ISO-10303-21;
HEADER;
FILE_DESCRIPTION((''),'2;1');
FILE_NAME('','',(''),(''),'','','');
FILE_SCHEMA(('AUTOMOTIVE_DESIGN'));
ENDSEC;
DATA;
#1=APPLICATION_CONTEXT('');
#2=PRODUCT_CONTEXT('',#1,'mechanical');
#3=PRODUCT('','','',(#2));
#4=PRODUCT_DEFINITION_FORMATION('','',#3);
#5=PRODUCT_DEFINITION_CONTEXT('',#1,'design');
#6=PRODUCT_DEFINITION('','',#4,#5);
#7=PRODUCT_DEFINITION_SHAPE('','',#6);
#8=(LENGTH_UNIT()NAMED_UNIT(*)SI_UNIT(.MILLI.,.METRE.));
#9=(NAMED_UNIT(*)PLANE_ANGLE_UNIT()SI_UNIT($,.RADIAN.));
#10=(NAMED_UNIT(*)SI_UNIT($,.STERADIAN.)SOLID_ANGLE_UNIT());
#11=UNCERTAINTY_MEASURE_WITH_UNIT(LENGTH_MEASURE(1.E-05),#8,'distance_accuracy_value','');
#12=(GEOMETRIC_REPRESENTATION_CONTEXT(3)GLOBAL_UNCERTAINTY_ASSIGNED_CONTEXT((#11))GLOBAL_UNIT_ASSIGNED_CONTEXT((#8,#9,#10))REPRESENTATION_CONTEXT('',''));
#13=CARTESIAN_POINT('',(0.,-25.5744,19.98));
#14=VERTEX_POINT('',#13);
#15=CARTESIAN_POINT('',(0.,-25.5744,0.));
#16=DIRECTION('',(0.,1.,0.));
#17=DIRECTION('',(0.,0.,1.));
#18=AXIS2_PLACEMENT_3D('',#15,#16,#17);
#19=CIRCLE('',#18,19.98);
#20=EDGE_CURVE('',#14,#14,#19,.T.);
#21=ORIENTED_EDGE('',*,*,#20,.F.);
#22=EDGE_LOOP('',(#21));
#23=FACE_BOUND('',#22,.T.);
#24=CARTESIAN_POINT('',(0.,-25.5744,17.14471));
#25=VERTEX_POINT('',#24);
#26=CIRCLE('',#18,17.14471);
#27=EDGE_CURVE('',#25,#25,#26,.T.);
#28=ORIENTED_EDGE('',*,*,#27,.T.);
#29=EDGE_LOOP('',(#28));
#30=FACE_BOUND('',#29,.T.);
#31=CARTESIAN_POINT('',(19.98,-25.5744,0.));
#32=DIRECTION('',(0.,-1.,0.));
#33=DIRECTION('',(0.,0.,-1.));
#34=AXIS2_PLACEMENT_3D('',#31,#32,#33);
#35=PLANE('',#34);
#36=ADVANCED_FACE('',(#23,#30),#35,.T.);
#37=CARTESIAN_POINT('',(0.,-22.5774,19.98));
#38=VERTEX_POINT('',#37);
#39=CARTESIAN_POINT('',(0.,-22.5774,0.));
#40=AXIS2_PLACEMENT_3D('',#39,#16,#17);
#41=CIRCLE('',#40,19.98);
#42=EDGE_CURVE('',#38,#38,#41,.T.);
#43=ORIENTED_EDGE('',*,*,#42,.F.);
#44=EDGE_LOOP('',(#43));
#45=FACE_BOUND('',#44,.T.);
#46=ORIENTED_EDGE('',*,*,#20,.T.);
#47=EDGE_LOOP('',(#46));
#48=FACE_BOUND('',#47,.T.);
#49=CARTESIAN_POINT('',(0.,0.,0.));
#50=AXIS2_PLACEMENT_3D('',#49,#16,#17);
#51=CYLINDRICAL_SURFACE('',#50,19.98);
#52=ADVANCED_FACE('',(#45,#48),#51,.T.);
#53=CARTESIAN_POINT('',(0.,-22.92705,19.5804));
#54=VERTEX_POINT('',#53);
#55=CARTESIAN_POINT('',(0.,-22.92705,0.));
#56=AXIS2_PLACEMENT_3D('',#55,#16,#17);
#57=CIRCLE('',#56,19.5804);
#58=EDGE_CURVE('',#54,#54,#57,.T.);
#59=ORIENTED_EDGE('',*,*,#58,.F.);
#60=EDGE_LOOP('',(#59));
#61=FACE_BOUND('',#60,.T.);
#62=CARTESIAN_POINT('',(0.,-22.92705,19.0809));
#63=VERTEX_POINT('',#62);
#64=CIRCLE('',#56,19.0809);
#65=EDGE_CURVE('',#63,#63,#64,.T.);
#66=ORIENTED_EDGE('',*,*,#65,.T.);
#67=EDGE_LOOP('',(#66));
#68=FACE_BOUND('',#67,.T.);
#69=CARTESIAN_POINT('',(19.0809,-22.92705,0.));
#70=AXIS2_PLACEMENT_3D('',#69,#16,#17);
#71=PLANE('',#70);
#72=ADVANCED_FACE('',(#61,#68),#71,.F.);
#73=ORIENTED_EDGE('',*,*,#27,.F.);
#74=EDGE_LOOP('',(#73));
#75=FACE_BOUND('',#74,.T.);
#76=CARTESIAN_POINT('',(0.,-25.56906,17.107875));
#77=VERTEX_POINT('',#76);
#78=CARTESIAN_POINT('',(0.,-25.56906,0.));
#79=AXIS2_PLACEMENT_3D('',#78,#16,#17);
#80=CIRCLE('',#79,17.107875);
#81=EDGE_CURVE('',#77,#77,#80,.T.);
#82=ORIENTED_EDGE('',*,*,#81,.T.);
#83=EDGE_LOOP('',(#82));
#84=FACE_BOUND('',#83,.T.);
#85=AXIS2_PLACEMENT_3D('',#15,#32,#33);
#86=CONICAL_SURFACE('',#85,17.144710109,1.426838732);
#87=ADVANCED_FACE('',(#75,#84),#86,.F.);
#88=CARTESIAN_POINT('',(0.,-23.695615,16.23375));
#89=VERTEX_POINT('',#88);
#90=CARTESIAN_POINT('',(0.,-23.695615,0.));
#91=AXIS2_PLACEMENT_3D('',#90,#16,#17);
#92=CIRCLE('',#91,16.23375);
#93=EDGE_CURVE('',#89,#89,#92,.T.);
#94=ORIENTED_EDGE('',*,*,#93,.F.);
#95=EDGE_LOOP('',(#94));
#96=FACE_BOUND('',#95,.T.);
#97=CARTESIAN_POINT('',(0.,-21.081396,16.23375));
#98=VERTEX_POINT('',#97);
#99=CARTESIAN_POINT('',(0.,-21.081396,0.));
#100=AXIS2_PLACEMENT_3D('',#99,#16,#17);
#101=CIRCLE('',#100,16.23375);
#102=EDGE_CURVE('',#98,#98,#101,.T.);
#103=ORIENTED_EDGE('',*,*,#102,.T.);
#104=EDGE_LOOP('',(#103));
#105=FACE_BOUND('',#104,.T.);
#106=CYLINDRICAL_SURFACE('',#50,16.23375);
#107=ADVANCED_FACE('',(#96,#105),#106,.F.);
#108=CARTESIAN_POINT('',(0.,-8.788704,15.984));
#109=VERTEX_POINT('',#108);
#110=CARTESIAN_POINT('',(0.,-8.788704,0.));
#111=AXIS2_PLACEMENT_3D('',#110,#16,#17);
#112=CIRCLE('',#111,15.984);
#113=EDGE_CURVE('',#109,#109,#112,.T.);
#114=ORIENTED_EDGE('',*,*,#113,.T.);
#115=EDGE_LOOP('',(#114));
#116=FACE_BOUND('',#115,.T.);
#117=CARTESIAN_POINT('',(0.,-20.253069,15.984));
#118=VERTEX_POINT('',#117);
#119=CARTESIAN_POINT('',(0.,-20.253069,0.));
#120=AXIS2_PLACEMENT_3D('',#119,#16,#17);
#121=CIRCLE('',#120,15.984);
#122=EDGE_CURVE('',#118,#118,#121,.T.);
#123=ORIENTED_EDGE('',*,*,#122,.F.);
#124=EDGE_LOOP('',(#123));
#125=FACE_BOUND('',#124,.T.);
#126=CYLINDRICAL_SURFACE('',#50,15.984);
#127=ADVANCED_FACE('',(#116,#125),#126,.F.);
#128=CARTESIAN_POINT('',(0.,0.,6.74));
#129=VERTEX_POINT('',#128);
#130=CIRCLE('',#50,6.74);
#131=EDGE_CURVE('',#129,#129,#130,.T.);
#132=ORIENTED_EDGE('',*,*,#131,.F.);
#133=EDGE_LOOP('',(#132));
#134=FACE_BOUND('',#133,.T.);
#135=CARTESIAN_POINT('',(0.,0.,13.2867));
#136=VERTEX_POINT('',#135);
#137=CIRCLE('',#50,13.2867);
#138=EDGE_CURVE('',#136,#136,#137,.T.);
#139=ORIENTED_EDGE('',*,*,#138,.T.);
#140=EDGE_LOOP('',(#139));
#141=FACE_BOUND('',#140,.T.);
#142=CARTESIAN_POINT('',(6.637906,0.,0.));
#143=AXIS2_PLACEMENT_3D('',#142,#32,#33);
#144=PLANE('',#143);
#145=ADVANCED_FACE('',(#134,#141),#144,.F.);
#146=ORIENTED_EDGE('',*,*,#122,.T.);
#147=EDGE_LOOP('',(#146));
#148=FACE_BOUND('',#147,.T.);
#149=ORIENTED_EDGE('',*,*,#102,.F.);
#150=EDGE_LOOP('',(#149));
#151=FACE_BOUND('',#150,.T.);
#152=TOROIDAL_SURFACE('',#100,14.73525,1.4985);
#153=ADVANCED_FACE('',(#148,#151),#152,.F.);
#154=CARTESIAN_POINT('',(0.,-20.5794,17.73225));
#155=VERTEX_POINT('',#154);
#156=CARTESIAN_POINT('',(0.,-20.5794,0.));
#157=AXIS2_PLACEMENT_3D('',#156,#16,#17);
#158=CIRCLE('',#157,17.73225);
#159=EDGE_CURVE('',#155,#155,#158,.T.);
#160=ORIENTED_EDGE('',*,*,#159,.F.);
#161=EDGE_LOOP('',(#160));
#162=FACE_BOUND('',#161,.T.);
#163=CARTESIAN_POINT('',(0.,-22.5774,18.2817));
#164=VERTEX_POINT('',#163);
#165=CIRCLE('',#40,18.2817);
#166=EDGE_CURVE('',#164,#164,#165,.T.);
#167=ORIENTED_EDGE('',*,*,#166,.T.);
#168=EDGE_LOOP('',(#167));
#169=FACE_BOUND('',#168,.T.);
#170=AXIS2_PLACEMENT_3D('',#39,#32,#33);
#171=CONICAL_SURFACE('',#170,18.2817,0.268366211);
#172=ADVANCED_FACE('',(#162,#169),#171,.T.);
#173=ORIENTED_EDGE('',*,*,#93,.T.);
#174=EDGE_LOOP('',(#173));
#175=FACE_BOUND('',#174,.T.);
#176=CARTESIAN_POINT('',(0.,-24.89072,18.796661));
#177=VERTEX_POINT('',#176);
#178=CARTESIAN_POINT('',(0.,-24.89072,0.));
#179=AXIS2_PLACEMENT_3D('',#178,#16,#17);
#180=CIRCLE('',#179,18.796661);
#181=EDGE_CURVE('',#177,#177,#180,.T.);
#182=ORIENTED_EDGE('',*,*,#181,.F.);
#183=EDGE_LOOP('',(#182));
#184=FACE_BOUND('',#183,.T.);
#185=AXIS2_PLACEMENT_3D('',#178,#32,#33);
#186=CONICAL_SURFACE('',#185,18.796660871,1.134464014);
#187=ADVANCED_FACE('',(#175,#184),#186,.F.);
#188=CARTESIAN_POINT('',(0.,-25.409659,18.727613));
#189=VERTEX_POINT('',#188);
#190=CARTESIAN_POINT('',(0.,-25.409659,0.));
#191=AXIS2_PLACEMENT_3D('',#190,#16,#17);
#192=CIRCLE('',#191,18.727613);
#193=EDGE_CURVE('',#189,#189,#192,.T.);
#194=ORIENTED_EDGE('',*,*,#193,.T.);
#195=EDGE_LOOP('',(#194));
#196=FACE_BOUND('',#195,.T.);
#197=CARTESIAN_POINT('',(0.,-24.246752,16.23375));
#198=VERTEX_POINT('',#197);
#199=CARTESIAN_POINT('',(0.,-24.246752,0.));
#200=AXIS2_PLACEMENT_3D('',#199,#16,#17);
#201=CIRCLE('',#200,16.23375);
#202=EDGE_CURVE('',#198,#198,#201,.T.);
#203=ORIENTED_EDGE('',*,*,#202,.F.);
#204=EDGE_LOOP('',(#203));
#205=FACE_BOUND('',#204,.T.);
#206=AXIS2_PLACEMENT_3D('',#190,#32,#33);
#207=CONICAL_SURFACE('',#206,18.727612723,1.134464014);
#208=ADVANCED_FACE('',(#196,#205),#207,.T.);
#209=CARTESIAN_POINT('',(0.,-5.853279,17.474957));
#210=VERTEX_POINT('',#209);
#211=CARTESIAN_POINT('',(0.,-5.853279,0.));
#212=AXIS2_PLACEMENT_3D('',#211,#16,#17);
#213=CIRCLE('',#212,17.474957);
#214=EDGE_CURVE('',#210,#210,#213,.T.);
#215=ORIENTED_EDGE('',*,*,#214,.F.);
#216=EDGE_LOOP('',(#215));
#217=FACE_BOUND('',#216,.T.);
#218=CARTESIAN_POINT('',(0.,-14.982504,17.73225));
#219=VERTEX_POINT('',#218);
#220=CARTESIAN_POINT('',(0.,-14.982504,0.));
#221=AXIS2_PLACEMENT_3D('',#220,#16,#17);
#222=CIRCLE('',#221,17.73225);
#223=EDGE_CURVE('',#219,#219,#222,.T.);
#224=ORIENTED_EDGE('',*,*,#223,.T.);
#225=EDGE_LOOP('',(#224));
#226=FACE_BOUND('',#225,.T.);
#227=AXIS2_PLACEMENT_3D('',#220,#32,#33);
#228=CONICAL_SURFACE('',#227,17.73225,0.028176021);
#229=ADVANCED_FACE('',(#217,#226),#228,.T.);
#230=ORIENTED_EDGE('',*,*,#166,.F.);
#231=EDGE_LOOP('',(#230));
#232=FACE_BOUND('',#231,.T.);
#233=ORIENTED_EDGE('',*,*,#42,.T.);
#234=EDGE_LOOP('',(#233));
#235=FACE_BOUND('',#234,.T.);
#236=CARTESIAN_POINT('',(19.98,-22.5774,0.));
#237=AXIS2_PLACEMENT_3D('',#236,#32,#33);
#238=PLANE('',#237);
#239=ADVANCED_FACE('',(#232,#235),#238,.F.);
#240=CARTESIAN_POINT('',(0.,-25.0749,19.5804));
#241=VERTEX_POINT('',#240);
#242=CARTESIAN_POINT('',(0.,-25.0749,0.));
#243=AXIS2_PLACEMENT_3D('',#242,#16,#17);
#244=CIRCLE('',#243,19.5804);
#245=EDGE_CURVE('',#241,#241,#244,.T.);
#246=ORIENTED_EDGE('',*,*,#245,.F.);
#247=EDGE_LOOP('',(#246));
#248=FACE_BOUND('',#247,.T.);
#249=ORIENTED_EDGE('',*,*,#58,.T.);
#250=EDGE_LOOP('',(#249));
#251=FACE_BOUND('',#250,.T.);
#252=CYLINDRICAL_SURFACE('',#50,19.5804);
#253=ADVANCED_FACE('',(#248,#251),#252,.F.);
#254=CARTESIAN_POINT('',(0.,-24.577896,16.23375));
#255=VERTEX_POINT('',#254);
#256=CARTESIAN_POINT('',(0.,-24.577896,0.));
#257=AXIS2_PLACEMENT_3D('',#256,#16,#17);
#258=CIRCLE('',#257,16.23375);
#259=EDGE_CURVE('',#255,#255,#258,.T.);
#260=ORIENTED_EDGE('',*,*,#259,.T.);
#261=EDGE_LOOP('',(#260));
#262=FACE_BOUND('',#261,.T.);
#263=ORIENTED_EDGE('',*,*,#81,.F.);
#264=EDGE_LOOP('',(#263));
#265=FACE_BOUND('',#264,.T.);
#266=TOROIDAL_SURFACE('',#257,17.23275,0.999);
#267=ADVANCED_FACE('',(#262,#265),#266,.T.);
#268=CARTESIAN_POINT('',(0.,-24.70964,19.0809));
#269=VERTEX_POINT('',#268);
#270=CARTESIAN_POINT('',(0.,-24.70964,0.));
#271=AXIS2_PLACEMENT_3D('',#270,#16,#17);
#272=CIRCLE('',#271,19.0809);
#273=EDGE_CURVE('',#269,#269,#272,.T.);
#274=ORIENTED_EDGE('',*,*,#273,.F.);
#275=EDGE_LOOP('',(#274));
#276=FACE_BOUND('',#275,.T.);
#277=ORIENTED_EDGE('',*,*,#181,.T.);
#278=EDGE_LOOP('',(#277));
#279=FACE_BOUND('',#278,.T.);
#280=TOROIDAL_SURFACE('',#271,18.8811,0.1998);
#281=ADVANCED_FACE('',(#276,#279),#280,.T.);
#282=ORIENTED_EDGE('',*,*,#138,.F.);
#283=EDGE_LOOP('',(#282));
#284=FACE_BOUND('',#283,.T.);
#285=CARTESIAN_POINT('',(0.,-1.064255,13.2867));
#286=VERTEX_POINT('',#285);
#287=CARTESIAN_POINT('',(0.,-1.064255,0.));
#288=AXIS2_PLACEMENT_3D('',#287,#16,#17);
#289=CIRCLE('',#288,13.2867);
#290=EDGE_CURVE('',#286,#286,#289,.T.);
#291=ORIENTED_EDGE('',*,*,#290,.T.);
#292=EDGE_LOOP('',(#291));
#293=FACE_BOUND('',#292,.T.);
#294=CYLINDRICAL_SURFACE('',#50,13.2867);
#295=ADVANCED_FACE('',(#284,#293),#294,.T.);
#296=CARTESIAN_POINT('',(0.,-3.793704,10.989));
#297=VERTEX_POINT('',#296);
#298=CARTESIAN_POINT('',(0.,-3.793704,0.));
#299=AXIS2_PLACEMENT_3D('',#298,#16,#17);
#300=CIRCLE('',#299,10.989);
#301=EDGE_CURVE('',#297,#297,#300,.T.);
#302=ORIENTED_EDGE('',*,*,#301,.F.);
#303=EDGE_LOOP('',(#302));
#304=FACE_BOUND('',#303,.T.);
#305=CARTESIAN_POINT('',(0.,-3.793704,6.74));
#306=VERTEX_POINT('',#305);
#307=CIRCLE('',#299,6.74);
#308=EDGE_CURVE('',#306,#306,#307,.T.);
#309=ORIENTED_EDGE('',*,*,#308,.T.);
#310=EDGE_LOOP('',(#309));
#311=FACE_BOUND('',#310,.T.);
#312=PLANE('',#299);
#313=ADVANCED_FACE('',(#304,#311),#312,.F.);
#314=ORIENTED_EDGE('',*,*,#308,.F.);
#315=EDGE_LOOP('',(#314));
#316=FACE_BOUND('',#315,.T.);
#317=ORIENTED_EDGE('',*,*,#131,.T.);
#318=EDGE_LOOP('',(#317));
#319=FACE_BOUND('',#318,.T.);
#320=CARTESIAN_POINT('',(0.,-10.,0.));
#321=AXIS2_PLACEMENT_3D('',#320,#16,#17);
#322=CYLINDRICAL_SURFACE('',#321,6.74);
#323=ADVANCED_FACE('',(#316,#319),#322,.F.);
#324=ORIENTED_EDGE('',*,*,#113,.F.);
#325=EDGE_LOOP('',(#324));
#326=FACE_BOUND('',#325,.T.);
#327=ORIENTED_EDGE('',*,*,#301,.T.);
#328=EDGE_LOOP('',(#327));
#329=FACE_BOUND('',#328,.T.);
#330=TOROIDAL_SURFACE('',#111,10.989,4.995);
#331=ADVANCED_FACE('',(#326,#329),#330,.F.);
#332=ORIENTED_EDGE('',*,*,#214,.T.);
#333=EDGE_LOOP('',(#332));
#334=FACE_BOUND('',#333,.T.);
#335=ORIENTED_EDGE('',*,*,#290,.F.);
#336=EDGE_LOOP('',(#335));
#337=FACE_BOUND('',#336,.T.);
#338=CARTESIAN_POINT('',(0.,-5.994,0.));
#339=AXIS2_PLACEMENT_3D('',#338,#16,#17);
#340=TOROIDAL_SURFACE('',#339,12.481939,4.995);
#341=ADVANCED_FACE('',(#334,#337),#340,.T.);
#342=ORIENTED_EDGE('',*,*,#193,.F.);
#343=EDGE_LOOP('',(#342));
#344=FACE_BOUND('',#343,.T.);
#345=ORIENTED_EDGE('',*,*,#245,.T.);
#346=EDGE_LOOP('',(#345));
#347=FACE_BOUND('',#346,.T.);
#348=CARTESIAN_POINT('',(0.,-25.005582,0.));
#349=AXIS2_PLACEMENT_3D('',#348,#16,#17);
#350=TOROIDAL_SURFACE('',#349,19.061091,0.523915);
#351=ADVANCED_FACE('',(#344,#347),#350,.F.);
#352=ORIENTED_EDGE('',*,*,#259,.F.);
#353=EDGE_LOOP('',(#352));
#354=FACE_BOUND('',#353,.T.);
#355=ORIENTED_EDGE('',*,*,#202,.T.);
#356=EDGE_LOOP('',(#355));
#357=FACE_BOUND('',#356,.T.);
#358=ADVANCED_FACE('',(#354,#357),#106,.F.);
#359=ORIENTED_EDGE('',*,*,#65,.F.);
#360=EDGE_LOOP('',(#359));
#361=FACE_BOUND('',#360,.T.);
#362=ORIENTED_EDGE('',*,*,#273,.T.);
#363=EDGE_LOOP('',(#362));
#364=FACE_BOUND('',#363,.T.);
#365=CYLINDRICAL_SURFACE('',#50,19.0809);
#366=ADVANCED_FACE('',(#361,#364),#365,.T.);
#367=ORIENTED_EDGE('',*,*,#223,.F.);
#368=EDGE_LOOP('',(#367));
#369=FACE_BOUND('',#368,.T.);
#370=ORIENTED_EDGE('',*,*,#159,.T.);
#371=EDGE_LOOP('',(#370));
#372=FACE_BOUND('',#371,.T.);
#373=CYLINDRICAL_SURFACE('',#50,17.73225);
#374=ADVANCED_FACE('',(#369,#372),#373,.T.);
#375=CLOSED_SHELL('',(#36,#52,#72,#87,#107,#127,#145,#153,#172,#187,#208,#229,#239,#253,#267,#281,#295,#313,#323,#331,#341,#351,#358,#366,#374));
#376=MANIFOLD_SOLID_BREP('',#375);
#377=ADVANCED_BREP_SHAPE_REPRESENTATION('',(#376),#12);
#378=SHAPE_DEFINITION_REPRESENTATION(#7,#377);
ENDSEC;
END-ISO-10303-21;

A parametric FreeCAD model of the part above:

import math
import FreeCAD as App
import Part
import Sketcher

V = App.Vector
Q = App.Units.Quantity

doc = App.newDocument("Part")
params = doc.addObject("Spreadsheet::Sheet", "Params")
for row, (alias, value) in enumerate([
    ("revolution_angle", "360 deg"),
    ("sketch2_diameter", "13.48 mm"),
    ("pocket1_length", "10 mm"),
], start=1):
    params.set(f"A{row}", alias)
    params.set(f"B{row}", "=" + value)
    params.setAlias(f"B{row}", alias)

body = doc.addObject("PartDesign::Body", "Body")

sketch1 = doc.addObject("Sketcher::SketchObject", "Sketch")
body.addObject(sketch1)
sketch1.AttachmentSupport = (doc.XY_Plane, [""])
sketch1.MapMode = "FlatFace"
sketch1.addGeometry(Part.LineSegment(V(0, 0, 0), V(0, -3.793704, 0)), False)
sketch1.addGeometry(Part.LineSegment(V(0, -3.793704, 0), V(10.989, -3.793704, 0)), False)
sketch1.addGeometry(Part.ArcOfCircle(Part.Circle(V(10.989, -8.788704, 0), V(0, 0, 1), 4.995), math.radians(0), math.radians(90)), False)
sketch1.addGeometry(Part.LineSegment(V(15.984, -8.788704, 0), V(15.984, -20.253069, 0)), False)
sketch1.addGeometry(Part.ArcOfCircle(Part.Circle(V(14.73525, -21.081396, 0), V(0, 0, 1), 1.4985), math.radians(0), math.radians(33.55731)), False)
sketch1.addGeometry(Part.LineSegment(V(16.23375, -21.081396, 0), V(16.23375, -23.695615, 0)), False)
sketch1.addGeometry(Part.LineSegment(V(16.23375, -23.695615, 0), V(18.796661, -24.89072, 0)), False)
sketch1.addGeometry(Part.ArcOfCircle(Part.Circle(V(18.8811, -24.70964, 0), V(0, 0, 1), 0.1998), math.radians(-115), math.radians(0)), False)
sketch1.addGeometry(Part.LineSegment(V(19.0809, -24.70964, 0), V(19.0809, -22.92705, 0)), False)
sketch1.addGeometry(Part.LineSegment(V(19.0809, -22.92705, 0), V(19.5804, -22.92705, 0)), False)
sketch1.addGeometry(Part.LineSegment(V(19.5804, -22.92705, 0), V(19.5804, -25.0749, 0)), False)
sketch1.addGeometry(Part.ArcOfCircle(Part.Circle(V(19.061091, -25.005582, 0), V(0, 0, 1), 0.523915), math.radians(-129.532293), math.radians(-7.602984)), False)
sketch1.addGeometry(Part.LineSegment(V(18.727613, -25.409659, 0), V(16.23375, -24.246752, 0)), False)
sketch1.addGeometry(Part.LineSegment(V(16.23375, -24.246752, 0), V(16.23375, -24.577896, 0)), False)
sketch1.addGeometry(Part.ArcOfCircle(Part.Circle(V(17.23275, -24.577896, 0), V(0, 0, 1), 0.999), math.radians(180), math.radians(262.819244)), False)
sketch1.addGeometry(Part.LineSegment(V(17.107875, -25.56906, 0), V(17.14471, -25.5744, 0)), False)
sketch1.addGeometry(Part.LineSegment(V(17.14471, -25.5744, 0), V(19.98, -25.5744, 0)), False)
sketch1.addGeometry(Part.LineSegment(V(19.98, -25.5744, 0), V(19.98, -22.5774, 0)), False)
sketch1.addGeometry(Part.LineSegment(V(19.98, -22.5774, 0), V(18.2817, -22.5774, 0)), False)
sketch1.addGeometry(Part.LineSegment(V(18.2817, -22.5774, 0), V(17.73225, -20.5794, 0)), False)
sketch1.addGeometry(Part.LineSegment(V(17.73225, -20.5794, 0), V(17.73225, -14.982504, 0)), False)
sketch1.addGeometry(Part.LineSegment(V(17.73225, -14.982504, 0), V(17.474957, -5.853279, 0)), False)
sketch1.addGeometry(Part.ArcOfCircle(Part.Circle(V(12.481939, -5.994, 0), V(0, 0, 1), 4.995), math.radians(1.614367), math.radians(80.72848)), False)
sketch1.addGeometry(Part.LineSegment(V(13.2867, -1.064255, 0), V(13.2867, 0, 0)), False)
sketch1.addGeometry(Part.LineSegment(V(13.2867, 0, 0), V(0, 0, 0)), False)
sketch1.addConstraint(Sketcher.Constraint("Coincident", 0, 2, 1, 1))
sketch1.addConstraint(Sketcher.Constraint("Tangent", 1, 2, 2, 2))
sketch1.addConstraint(Sketcher.Constraint("Tangent", 2, 1, 3, 1))
sketch1.addConstraint(Sketcher.Constraint("Coincident", 3, 2, 4, 2))
sketch1.addConstraint(Sketcher.Constraint("Tangent", 4, 1, 5, 1))
sketch1.addConstraint(Sketcher.Constraint("Coincident", 5, 2, 6, 1))
sketch1.addConstraint(Sketcher.Constraint("Tangent", 6, 2, 7, 1))
sketch1.addConstraint(Sketcher.Constraint("Tangent", 7, 2, 8, 1))
sketch1.addConstraint(Sketcher.Constraint("Coincident", 8, 2, 9, 1))
sketch1.addConstraint(Sketcher.Constraint("Coincident", 9, 2, 10, 1))
sketch1.addConstraint(Sketcher.Constraint("Coincident", 10, 2, 11, 2))
sketch1.addConstraint(Sketcher.Constraint("Coincident", 11, 1, 12, 1))
sketch1.addConstraint(Sketcher.Constraint("Coincident", 12, 2, 13, 1))
sketch1.addConstraint(Sketcher.Constraint("Tangent", 13, 2, 14, 1))
sketch1.addConstraint(Sketcher.Constraint("Coincident", 14, 2, 15, 1))
sketch1.addConstraint(Sketcher.Constraint("Coincident", 15, 2, 16, 1))
sketch1.addConstraint(Sketcher.Constraint("Coincident", 16, 2, 17, 1))
sketch1.addConstraint(Sketcher.Constraint("Coincident", 17, 2, 18, 1))
sketch1.addConstraint(Sketcher.Constraint("Coincident", 18, 2, 19, 1))
sketch1.addConstraint(Sketcher.Constraint("Coincident", 19, 2, 20, 1))
sketch1.addConstraint(Sketcher.Constraint("Coincident", 20, 2, 21, 1))
sketch1.addConstraint(Sketcher.Constraint("Tangent", 21, 2, 22, 1))
sketch1.addConstraint(Sketcher.Constraint("Coincident", 22, 2, 23, 1))
sketch1.addConstraint(Sketcher.Constraint("Coincident", 23, 2, 24, 1))
sketch1.addConstraint(Sketcher.Constraint("Coincident", 24, 2, 0, 1))
sketch1.addConstraint(Sketcher.Constraint("Vertical", 0))
sketch1.addConstraint(Sketcher.Constraint("Horizontal", 1))
sketch1.addConstraint(Sketcher.Constraint("Vertical", 3))
sketch1.addConstraint(Sketcher.Constraint("Vertical", 5))
sketch1.addConstraint(Sketcher.Constraint("Vertical", 8))
sketch1.addConstraint(Sketcher.Constraint("Horizontal", 9))
sketch1.addConstraint(Sketcher.Constraint("Vertical", 10))
sketch1.addConstraint(Sketcher.Constraint("Vertical", 13))
sketch1.addConstraint(Sketcher.Constraint("Horizontal", 16))
sketch1.addConstraint(Sketcher.Constraint("Vertical", 17))
sketch1.addConstraint(Sketcher.Constraint("Horizontal", 18))
sketch1.addConstraint(Sketcher.Constraint("Vertical", 20))
sketch1.addConstraint(Sketcher.Constraint("Vertical", 23))
sketch1.addConstraint(Sketcher.Constraint("Horizontal", 24))
sketch1.addConstraint(Sketcher.Constraint("Coincident", 24, 2, -1, 1))
sketch1.addConstraint(Sketcher.Constraint("Equal", 2, 22))
sketch1.addConstraint(Sketcher.Constraint("Parallel", 6, 12))
sketch1.addConstraint(Sketcher.Constraint("Vertical", 5, 2, 12, 2))
sketch1.addConstraint(Sketcher.Constraint("Angle", 6, Q("-25 deg")))
sketch1.addConstraint(Sketcher.Constraint("Radius", 2, 4.995))
sketch1.addConstraint(Sketcher.Constraint("Radius", 14, 0.999))
sketch1.addConstraint(Sketcher.Constraint("Radius", 4, 1.4985))
sketch1.addConstraint(Sketcher.Constraint("Radius", 7, 0.1998))
sketch1.addConstraint(Sketcher.Constraint("DistanceX", 1, 1, 1, 2, 10.989))
sketch1.addConstraint(Sketcher.Constraint("DistanceY", 17, 1, 17, 2, 2.997))
sketch1.addConstraint(Sketcher.Constraint("DistanceX", -1, 1, 16, 2, 19.98))
sketch1.addConstraint(Sketcher.Constraint("DistanceX", 9, 1, 9, 2, 0.4995))
sketch1.addConstraint(Sketcher.Constraint("DistanceX", 18, 2, 18, 1, 1.6983))
sketch1.addConstraint(Sketcher.Constraint("DistanceX", 24, 2, 24, 1, 13.2867))
sketch1.addConstraint(Sketcher.Constraint("DistanceY", 22, 3, -1, 1, 5.994))
sketch1.addConstraint(Sketcher.Constraint("Radius", 11, 0.523915))
sketch1.addConstraint(Sketcher.Constraint("DistanceY", 18, 2, 19, 2, 1.998))
sketch1.addConstraint(Sketcher.Constraint("DistanceX", 4, 3, 20, 2, 2.997))
sketch1.addConstraint(Sketcher.Constraint("DistanceX", 16, 1, 16, 2, 2.83529))
sketch1.addConstraint(Sketcher.Constraint("DistanceY", 5, 2, 5, 1, 2.614219))
sketch1.addConstraint(Sketcher.Constraint("DistanceY", 8, 1, 8, 2, 1.78259))
sketch1.addConstraint(Sketcher.Constraint("DistanceY", 10, 2, 10, 1, 2.14785))
sketch1.addConstraint(Sketcher.Constraint("DistanceX", -1, 1, 7, 3, 18.8811))
sketch1.addConstraint(Sketcher.Constraint("DistanceY", 10, 2, -1, 1, 25.0749))
sketch1.addConstraint(Sketcher.Constraint("DistanceY", 15, 2, -1, 1, 25.5744))
sketch1.addConstraint(Sketcher.Constraint("DistanceY", 14, 3, 4, 3, 3.4965))
sketch1.addConstraint(Sketcher.Constraint("DistanceY", 14, 2, 11, 1, 0.159401))
sketch1.addConstraint(Sketcher.Constraint("DistanceY", 20, 2, 2, 1, 6.1938))
sketch1.addConstraint(Sketcher.Constraint("Distance", 6, 2.827859))
sketch1.addConstraint(Sketcher.Constraint("Distance", 15, 0.03722))
sketch1.addConstraint(Sketcher.Constraint("Distance", 21, 9.13285))
sketch1.addConstraint(Sketcher.Constraint("DistanceY", 0, 2, 0, 1, 3.793704))
sketch1.addConstraint(Sketcher.Constraint("DistanceY", 13, 2, 13, 1, 0.331144))
revolution = doc.addObject("PartDesign::Revolution", "Revolution")
body.addObject(revolution)
revolution.Profile = sketch1
revolution.ReferenceAxis = (sketch1, ["V_Axis"])
revolution.setExpression("Angle", "Params.revolution_angle")

sketch2 = doc.addObject("Sketcher::SketchObject", "Sketch001")
body.addObject(sketch2)
sketch2.AttachmentSupport = (doc.XZ_Plane, [""])
sketch2.MapMode = "FlatFace"
sketch2.addGeometry(Part.Circle(V(0, 0, 0), V(0, 0, 1), 6.74), False)
sketch2.addConstraint(Sketcher.Constraint("Coincident", 0, 3, -1, 1))
sketch2.addConstraint(Sketcher.Constraint("Diameter", 0, 13.48))
sketch2.setExpression("Constraints[1]", "Params.sketch2_diameter")
pocket1 = doc.addObject("PartDesign::Pocket", "Pocket")
body.addObject(pocket1)
pocket1.Profile = sketch2
pocket1.setExpression("Length", "Params.pocket1_length")
pocket1.Reversed = True

doc.recompute()
